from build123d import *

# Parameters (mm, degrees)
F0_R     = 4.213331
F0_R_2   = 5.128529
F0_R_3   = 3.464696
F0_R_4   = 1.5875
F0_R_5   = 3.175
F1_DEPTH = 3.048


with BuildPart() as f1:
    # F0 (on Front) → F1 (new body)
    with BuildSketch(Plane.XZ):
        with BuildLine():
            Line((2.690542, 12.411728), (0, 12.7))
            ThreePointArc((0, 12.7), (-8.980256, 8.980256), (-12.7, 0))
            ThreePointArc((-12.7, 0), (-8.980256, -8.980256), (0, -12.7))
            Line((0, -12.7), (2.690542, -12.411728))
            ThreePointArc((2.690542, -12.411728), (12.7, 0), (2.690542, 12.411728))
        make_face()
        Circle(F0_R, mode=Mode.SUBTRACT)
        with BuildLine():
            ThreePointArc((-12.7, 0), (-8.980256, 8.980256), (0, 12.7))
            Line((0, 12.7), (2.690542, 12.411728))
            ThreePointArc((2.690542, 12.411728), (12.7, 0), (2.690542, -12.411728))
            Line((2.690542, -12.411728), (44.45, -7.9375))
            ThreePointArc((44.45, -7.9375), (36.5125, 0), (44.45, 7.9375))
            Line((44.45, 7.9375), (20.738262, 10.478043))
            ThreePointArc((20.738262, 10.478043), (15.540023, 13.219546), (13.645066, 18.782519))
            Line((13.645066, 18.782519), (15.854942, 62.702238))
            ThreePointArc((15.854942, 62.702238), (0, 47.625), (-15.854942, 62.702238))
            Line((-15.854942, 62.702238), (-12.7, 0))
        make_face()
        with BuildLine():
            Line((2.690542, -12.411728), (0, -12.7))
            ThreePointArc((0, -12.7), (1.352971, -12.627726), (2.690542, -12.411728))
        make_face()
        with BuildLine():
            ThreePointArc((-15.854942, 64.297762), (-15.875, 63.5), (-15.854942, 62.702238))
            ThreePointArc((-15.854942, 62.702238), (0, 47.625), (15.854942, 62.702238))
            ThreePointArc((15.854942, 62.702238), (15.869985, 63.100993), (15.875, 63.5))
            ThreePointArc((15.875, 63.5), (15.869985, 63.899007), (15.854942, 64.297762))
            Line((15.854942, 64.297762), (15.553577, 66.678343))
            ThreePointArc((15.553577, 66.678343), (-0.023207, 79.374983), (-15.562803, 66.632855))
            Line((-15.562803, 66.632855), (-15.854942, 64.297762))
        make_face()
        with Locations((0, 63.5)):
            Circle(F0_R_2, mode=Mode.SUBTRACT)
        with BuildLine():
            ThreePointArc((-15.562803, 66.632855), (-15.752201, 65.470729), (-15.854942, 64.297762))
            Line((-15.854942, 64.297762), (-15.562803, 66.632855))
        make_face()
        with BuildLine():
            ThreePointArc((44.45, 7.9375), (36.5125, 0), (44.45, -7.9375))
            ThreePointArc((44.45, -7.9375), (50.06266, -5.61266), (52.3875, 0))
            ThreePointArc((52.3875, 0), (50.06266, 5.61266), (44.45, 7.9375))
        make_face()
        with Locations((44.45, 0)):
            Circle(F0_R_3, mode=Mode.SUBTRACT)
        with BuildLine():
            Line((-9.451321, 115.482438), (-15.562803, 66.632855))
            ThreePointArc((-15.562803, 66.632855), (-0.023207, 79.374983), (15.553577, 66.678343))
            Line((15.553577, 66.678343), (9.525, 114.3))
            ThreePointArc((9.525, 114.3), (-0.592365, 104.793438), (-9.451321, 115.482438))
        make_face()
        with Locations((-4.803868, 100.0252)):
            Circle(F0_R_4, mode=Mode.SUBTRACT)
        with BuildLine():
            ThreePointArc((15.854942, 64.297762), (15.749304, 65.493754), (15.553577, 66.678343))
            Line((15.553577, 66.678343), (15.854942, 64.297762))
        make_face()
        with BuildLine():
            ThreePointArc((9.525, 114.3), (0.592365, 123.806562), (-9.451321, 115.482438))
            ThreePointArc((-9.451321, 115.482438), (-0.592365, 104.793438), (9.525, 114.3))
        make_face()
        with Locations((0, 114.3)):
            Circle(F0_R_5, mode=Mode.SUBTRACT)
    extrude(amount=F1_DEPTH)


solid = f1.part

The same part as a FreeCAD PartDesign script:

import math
import FreeCAD as App
import Part
import Sketcher

V = App.Vector
Q = App.Units.Quantity

doc = App.newDocument("Part")
body = doc.addObject("PartDesign::Body", "Body")

sketch1 = body.newObject("Sketcher::SketchObject", "Sketch")
sketch1.AttachmentSupport = (doc.getObject("XZ_Plane"), [""])
sketch1.MapMode = "FlatFace"
sketch1.addGeometry(Part.LineSegment(V(2.690542, -12.411728, 0), V(44.45, -7.9375, 0)), False)
sketch1.addGeometry(Part.ArcOfCircle(Part.Circle(V(44.45, 0, 0), V(0, 0, 1), 7.9375), math.radians(-89.999998), math.radians(-0.000002)), False)
sketch1.addGeometry(Part.ArcOfCircle(Part.Circle(V(44.45, 0, 0), V(0, 0, 1), 7.9375), math.radians(0.000002), math.radians(89.999998)), False)
sketch1.addGeometry(Part.LineSegment(V(44.45, 7.9375, 0), V(20.738262, 10.478043, 0)), False)
sketch1.addGeometry(Part.ArcOfCircle(Part.Circle(V(21.585222, 18.383, 0), V(0, 0, 1), 7.950201), math.radians(177.119523), math.radians(263.884494)), False)
sketch1.addGeometry(Part.LineSegment(V(13.645066, 18.782519, 0), V(15.854942, 62.702238, 0)), False)
sketch1.addGeometry(Part.ArcOfCircle(Part.Circle(V(0.001293, 63.499977, 0), V(0, 0, 1), 15.873707), math.radians(-2.880633), math.radians(0.000083)), False)
sketch1.addGeometry(Part.ArcOfCircle(Part.Circle(V(0.001293, 63.500023, 0), V(0, 0, 1), 15.873707), math.radians(-0.000083), math.radians(2.880633)), False)
sketch1.addGeometry(Part.ArcOfCircle(Part.Circle(V(0.00017, 63.500024, 0), V(0, 0, 1), 15.874828), math.radians(2.880427), math.radians(11.549312)), False)
sketch1.addGeometry(Part.LineSegment(V(15.553577, 66.678343, 0), V(9.525, 114.3, 0)), False)
sketch1.addGeometry(Part.ArcOfCircle(Part.Circle(V(0, 114.299999, 0), V(0, 0, 1), 9.525), math.radians(0.000003), math.radians(172.868875)), False)
sketch1.addGeometry(Part.LineSegment(V(-9.451321, 115.482438, 0), V(-15.562803, 66.632855, 0)), False)
sketch1.addGeometry(Part.ArcOfCircle(Part.Circle(V(0.000054, 63.499995, 0), V(0, 0, 1), 15.875053), math.radians(168.618264), math.radians(177.119509)), False)
sketch1.addGeometry(Part.ArcOfCircle(Part.Circle(V(-0.000373, 63.5, 0), V(0, 0, 1), 15.874627), math.radians(177.11945), math.radians(182.88055)), False)
sketch1.addGeometry(Part.LineSegment(V(-15.854942, 62.702238, 0), V(-12.7, 0, 0)), False)
sketch1.addGeometry(Part.ArcOfCircle(Part.Circle(V(0, 0, 0), V(0, 0, 1), 12.7), math.radians(-179.999998), math.radians(-90.000002)), False)
sketch1.addGeometry(Part.ArcOfCircle(Part.Circle(V(-0.000006, 0.000066, 0), V(0, 0, 1), 12.700066), math.radians(-89.999975), math.radians(-77.769033)), False)
sketch1.addGeometry(Part.Circle(V(0, 0, 0), V(0, 0, 1), 4.213331), False)
sketch1.addGeometry(Part.Circle(V(44.45, 0, 0), V(0, 0, 1), 3.464696), False)
sketch1.addGeometry(Part.Circle(V(0, 63.5, 0), V(0, 0, 1), 5.128529), False)
sketch1.addGeometry(Part.Circle(V(-4.803868, 100.0252, 0), V(0, 0, 1), 1.5875), False)
sketch1.addGeometry(Part.Circle(V(0, 114.3, 0), V(0, 0, 1), 3.175), False)
sketch1.addConstraint(Sketcher.Constraint("Coincident", 0, 2, 1, 1))
sketch1.addConstraint(Sketcher.Constraint("Coincident", 1, 2, 2, 1))
sketch1.addConstraint(Sketcher.Constraint("Coincident", 2, 2, 3, 1))
sketch1.addConstraint(Sketcher.Constraint("Coincident", 3, 2, 4, 2))
sketch1.addConstraint(Sketcher.Constraint("Coincident", 4, 1, 5, 1))
sketch1.addConstraint(Sketcher.Constraint("Coincident", 5, 2, 6, 1))
sketch1.addConstraint(Sketcher.Constraint("Coincident", 6, 2, 7, 1))
sketch1.addConstraint(Sketcher.Constraint("Coincident", 7, 2, 8, 1))
sketch1.addConstraint(Sketcher.Constraint("Coincident", 8, 2, 9, 1))
sketch1.addConstraint(Sketcher.Constraint("Coincident", 9, 2, 10, 1))
sketch1.addConstraint(Sketcher.Constraint("Coincident", 10, 2, 11, 1))
sketch1.addConstraint(Sketcher.Constraint("Coincident", 11, 2, 12, 1))
sketch1.addConstraint(Sketcher.Constraint("Coincident", 12, 2, 13, 1))
sketch1.addConstraint(Sketcher.Constraint("Coincident", 13, 2, 14, 1))
sketch1.addConstraint(Sketcher.Constraint("Coincident", 14, 2, 15, 1))
sketch1.addConstraint(Sketcher.Constraint("Coincident", 15, 2, 16, 1))
sketch1.addConstraint(Sketcher.Constraint("Coincident", 16, 2, 0, 1))
sketch1.addConstraint(Sketcher.Constraint("Coincident", 15, 3, -1, 1))
sketch1.addConstraint(Sketcher.Constraint("Coincident", 17, 3, -1, 1))
sketch1.addConstraint(Sketcher.Constraint("Coincident", 2, 3, 1, 3))
sketch1.addConstraint(Sketcher.Constraint("Coincident", 18, 3, 1, 3))
sketch1.addConstraint(Sketcher.Constraint("Coincident", 21, 3, 10, 3))
sketch1.addConstraint(Sketcher.Constraint("PointOnObject", 1, 3, -1))
sketch1.addConstraint(Sketcher.Constraint("PointOnObject", 10, 3, -2))
sketch1.addConstraint(Sketcher.Constraint("PointOnObject", 19, 3, -2))
sketch1.addConstraint(Sketcher.Constraint("PointOnObject", 1, 2, -1))
sketch1.addConstraint(Sketcher.Constraint("PointOnObject", 14, 2, -1))
sketch1.addConstraint(Sketcher.Constraint("PointOnObject", 15, 2, -2))
sketch1.addConstraint(Sketcher.Constraint("Radius", 15, Q("0.5 in")))
sketch1.addConstraint(Sketcher.Constraint("Diameter", 21, Q("0.25 in")))
sketch1.addConstraint(Sketcher.Constraint("Diameter", 20, Q("0.125 in")))
sketch1.addConstraint(Sketcher.Constraint("Radius", 1, Q("0.3125 in")))
sketch1.addConstraint(Sketcher.Constraint("Radius", 4, Q("0.313 in")))
sketch1.addConstraint(Sketcher.Constraint("Radius", 10, Q("0.375 in")))
sketch1.addConstraint(Sketcher.Constraint("DistanceY", 12, 3, 10, 3, Q("2.0000002 in")))
sketch1.addConstraint(Sketcher.Constraint("DistanceY", 19, 3, 21, 3, Q("2 in")))
sketch1.addConstraint(Sketcher.Constraint("DistanceY", -1, 1, 10, 3, Q("4.5 in")))
sketch1.addConstraint(Sketcher.Constraint("DistanceY", -1, 1, 13, 3, Q("2.5 in")))
sketch1.addConstraint(Sketcher.Constraint("DistanceY", -1, 1, 6, 2, Q("2.5 in")))
sketch1.addConstraint(Sketcher.Constraint("DistanceY", -1, 1, 9, 2, Q("4.5 in")))
sketch1.addConstraint(Sketcher.Constraint("DistanceX", -1, 1, 1, 3, Q("1.75 in")))
sketch1.addConstraint(Sketcher.Constraint("DistanceX", -1, 1, 0, 2, Q("1.75 in")))
sketch1.addConstraint(Sketcher.Constraint("DistanceX", -1, 1, 2, 2, Q("1.75 in")))
sketch1.addConstraint(Sketcher.Constraint("Diameter", 19, Q("10.257058 mm")))
sketch1.addConstraint(Sketcher.Constraint("DistanceY", -1, 1, 20, 3, Q("3.938 in")))
sketch1.addConstraint(Sketcher.Constraint("DistanceX", -1, 1, 6, 2, Q("0.625 in")))
sketch1.addConstraint(Sketcher.Constraint("Radius", 8, Q("15.874828 mm")))
sketch1.addConstraint(Sketcher.Constraint("Diameter", 17, Q("8.426662 mm")))
sketch1.addConstraint(Sketcher.Constraint("Diameter", 18, Q("6.929392 mm")))
sketch1.addConstraint(Sketcher.Constraint("Radius", 6, Q("15.873707 mm")))
sketch1.addConstraint(Sketcher.Constraint("Radius", 7, Q("15.873707 mm")))
sketch1.addConstraint(Sketcher.Constraint("Radius", 12, Q("15.875053 mm")))
sketch1.addConstraint(Sketcher.Constraint("Radius", 13, Q("15.874627 mm")))
sketch1.addConstraint(Sketcher.Constraint("Radius", 16, Q("12.700066 mm")))
sketch1.addConstraint(Sketcher.Constraint("DistanceY", -1, 1, 4, 3, Q("18.383 mm")))
sketch1.addConstraint(Sketcher.Constraint("DistanceX", 16, 3, 6, 3, Q("0.001298 mm")))
sketch1.addConstraint(Sketcher.Constraint("Distance", 3, Q("23.84745 mm")))
sketch1.addConstraint(Sketcher.Constraint("Distance", 5, Q("43.97528 mm")))
sketch1.addConstraint(Sketcher.Constraint("Distance", 9, Q("48.001729 mm")))
sketch1.addConstraint(Sketcher.Constraint("Distance", 14, Q("62.78156 mm")))
sketch1.addConstraint(Sketcher.Constraint("DistanceX", -1, 1, 8, 3, Q("0.00017 mm")))
sketch1.addConstraint(Sketcher.Constraint("DistanceX", -1, 1, 3, 2, Q("20.738262 mm")))
sketch1.addConstraint(Sketcher.Constraint("DistanceY", -1, 1, 4, 1, Q("18.782519 mm")))
sketch1.addConstraint(Sketcher.Constraint("DistanceX", -1, 1, 7, 2, Q("15.854942 mm")))
sketch1.addConstraint(Sketcher.Constraint("DistanceY", -1, 1, 7, 2, Q("64.297762 mm")))
sketch1.addConstraint(Sketcher.Constraint("DistanceX", 10, 2, -1, 1, Q("9.451321 mm")))
sketch1.addConstraint(Sketcher.Constraint("DistanceX", 13, 2, -1, 1, Q("15.854942 mm")))
sketch1.addConstraint(Sketcher.Constraint("DistanceX", -1, 1, 16, 2, Q("2.690542 mm")))
sketch1.addConstraint(Sketcher.Constraint("DistanceY", 16, 3, 6, 3, Q("63.49991 mm")))
sketch1.addConstraint(Sketcher.Constraint("DistanceX", 20, 3, 8, 3, Q("4.804038 mm")))
sketch1.addConstraint(Sketcher.Constraint("DistanceX", 11, 2, 13, 3, Q("15.56243 mm")))
sketch1.addConstraint(Sketcher.Constraint("DistanceX", 12, 2, 11, 2, Q("0.292139 mm")))
pad1 = body.newObject("PartDesign::Pad", "Pad")
pad1.Profile = sketch1
pad1.Length = Q("0.12 in")

doc.recompute()
